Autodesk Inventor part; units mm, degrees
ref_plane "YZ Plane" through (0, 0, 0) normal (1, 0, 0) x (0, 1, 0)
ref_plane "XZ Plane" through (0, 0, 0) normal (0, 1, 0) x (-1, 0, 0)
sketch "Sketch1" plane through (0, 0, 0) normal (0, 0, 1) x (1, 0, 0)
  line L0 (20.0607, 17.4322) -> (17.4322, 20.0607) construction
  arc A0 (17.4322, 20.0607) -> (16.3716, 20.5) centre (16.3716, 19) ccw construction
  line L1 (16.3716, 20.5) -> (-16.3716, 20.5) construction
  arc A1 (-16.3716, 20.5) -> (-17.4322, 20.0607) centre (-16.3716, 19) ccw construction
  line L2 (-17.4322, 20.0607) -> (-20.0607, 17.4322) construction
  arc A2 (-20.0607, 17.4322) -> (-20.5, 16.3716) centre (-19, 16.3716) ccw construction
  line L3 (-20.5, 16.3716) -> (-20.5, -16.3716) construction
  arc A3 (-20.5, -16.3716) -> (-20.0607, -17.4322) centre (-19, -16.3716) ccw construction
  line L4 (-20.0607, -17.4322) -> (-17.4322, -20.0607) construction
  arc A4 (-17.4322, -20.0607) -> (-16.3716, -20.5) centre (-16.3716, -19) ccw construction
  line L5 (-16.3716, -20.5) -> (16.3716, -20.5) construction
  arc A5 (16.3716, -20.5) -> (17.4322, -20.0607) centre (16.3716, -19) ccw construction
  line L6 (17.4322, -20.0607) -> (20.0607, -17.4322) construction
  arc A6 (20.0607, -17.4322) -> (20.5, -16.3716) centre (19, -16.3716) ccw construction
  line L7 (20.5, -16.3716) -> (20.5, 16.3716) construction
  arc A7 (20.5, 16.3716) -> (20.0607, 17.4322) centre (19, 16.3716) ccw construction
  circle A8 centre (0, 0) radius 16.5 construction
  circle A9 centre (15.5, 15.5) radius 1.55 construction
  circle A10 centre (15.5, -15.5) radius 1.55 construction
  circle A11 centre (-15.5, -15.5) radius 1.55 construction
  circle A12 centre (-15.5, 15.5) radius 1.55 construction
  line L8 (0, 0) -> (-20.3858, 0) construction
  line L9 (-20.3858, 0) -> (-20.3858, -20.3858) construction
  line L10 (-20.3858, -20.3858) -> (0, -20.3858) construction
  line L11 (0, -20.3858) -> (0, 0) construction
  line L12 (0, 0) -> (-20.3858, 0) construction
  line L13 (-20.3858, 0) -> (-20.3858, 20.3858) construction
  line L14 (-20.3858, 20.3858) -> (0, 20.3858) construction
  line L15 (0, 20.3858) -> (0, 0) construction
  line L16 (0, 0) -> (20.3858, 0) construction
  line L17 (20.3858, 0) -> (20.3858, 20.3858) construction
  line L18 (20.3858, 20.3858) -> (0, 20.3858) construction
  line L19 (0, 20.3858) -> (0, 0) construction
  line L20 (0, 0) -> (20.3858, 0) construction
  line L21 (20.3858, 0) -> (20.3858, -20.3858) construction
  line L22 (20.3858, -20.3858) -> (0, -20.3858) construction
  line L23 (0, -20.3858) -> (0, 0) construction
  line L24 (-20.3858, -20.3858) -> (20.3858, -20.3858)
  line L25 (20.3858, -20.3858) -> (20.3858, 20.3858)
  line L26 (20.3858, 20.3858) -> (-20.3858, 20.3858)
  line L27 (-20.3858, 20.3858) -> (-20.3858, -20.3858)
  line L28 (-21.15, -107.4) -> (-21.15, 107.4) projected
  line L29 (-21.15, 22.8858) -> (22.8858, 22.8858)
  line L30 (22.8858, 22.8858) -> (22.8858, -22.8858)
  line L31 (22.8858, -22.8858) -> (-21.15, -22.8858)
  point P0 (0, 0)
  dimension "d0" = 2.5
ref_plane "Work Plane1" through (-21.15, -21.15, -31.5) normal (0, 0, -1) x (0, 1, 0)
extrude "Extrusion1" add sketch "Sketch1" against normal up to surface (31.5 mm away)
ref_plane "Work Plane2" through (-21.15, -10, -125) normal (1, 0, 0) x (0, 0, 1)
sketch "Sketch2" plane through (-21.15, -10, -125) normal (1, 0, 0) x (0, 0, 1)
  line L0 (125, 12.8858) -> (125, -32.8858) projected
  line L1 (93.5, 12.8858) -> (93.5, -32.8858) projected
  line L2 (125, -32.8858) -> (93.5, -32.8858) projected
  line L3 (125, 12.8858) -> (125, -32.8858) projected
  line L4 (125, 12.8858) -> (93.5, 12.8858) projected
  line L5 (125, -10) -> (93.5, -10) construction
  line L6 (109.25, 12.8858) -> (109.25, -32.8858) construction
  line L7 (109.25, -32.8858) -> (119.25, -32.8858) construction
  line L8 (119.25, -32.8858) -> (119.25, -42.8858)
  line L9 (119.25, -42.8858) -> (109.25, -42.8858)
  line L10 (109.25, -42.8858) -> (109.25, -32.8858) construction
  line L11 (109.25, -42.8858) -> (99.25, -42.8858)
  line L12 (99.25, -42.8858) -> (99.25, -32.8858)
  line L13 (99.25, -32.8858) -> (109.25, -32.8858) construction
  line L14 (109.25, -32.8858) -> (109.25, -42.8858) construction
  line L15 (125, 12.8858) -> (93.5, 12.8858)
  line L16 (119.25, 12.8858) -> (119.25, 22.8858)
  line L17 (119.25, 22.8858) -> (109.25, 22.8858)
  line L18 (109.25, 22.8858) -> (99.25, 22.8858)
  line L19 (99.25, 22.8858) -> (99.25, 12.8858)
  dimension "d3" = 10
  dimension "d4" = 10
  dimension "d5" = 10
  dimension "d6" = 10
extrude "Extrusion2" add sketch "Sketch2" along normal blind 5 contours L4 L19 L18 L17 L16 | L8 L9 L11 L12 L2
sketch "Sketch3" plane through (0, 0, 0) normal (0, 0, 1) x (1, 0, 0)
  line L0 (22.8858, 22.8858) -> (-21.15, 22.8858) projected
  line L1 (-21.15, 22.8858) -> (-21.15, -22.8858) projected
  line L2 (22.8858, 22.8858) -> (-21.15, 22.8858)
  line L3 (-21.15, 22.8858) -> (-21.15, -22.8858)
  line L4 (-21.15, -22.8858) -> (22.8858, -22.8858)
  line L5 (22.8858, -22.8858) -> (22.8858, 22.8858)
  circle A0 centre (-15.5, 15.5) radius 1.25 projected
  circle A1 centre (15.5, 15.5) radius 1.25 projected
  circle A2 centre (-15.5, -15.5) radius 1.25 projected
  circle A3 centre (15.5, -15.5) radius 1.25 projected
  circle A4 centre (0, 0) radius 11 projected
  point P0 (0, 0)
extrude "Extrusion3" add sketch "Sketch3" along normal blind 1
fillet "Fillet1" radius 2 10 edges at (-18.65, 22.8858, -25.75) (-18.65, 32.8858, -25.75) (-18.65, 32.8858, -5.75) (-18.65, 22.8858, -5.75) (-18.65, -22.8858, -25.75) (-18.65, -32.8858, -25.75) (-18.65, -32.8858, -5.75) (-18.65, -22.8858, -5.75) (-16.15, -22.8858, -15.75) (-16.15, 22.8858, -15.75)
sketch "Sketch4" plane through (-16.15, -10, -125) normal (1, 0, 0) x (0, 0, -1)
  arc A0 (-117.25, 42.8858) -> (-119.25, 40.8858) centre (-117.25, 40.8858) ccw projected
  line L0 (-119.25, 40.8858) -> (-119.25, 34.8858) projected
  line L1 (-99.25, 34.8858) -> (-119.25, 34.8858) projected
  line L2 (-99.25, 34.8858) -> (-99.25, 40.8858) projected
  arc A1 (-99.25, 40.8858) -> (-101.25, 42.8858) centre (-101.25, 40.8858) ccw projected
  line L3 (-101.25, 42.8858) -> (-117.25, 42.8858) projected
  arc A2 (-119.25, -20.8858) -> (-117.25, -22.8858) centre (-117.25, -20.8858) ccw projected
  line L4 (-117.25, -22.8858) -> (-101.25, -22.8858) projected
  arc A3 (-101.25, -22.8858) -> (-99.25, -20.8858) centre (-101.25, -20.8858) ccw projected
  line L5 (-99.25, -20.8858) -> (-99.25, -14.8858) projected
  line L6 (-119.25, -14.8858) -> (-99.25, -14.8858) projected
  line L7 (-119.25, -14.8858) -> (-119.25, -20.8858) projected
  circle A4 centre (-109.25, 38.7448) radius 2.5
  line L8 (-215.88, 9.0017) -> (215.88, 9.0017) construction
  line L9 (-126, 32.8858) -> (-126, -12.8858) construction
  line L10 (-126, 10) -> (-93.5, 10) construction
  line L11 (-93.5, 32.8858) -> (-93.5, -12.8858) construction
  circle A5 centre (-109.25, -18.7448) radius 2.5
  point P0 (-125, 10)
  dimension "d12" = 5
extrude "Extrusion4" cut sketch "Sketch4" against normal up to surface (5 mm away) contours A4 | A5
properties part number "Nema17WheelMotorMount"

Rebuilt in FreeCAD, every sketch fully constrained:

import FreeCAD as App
import Part
import Sketcher
Q = App.Units.Quantity


def edges_at(feature, points):
    """Names of the edges that pass closest to the given points."""
    edges = feature.Shape.Edges
    near = lambda p: min(range(len(edges)), key=lambda i: edges[i].distToShape(Part.Vertex(*p))[0])
    return sorted({f"Edge{near(p) + 1}" for p in points})

doc = App.newDocument("Part")
body = doc.addObject("PartDesign::Body", "Body")

sketch1 = body.newObject("Sketcher::SketchObject", "Sketch")
sketch1.AttachmentSupport = (doc.getObject("XY_Plane"), [""])
sketch1.MapMode = "FlatFace"
sketch1.addGeometry(Part.LineSegment(App.Vector(-21.15, 22.8858, 0), App.Vector(-21.15, -22.8858, 0)), False)
sketch1.addGeometry(Part.LineSegment(App.Vector(-21.15, -22.8858, 0), App.Vector(22.8858, -22.8858, 0)), False)
sketch1.addGeometry(Part.LineSegment(App.Vector(22.8858, -22.8858, 0), App.Vector(22.8858, 22.8858, 0)), False)
sketch1.addGeometry(Part.LineSegment(App.Vector(22.8858, 22.8858, 0), App.Vector(-21.15, 22.8858, 0)), False)
sketch1.addGeometry(Part.LineSegment(App.Vector(20.3858, -20.3858, 0), App.Vector(-20.3858, -20.3858, 0)), False)
sketch1.addGeometry(Part.LineSegment(App.Vector(-20.3858, -20.3858, 0), App.Vector(-20.3858, 20.3858, 0)), False)
sketch1.addGeometry(Part.LineSegment(App.Vector(-20.3858, 20.3858, 0), App.Vector(20.3858, 20.3858, 0)), False)
sketch1.addGeometry(Part.LineSegment(App.Vector(20.3858, 20.3858, 0), App.Vector(20.3858, -20.3858, 0)), False)
sketch1.addConstraint(Sketcher.Constraint("Coincident", 0, 2, 1, 1))
sketch1.addConstraint(Sketcher.Constraint("Coincident", 1, 2, 2, 1))
sketch1.addConstraint(Sketcher.Constraint("Coincident", 2, 2, 3, 1))
sketch1.addConstraint(Sketcher.Constraint("Coincident", 3, 2, 0, 1))
sketch1.addConstraint(Sketcher.Constraint("Coincident", 4, 2, 5, 1))
sketch1.addConstraint(Sketcher.Constraint("Coincident", 5, 2, 6, 1))
sketch1.addConstraint(Sketcher.Constraint("Coincident", 6, 2, 7, 1))
sketch1.addConstraint(Sketcher.Constraint("Coincident", 7, 2, 4, 1))
sketch1.addConstraint(Sketcher.Constraint("Vertical", 0))
sketch1.addConstraint(Sketcher.Constraint("Horizontal", 1))
sketch1.addConstraint(Sketcher.Constraint("Vertical", 2))
sketch1.addConstraint(Sketcher.Constraint("Horizontal", 3))
sketch1.addConstraint(Sketcher.Constraint("Horizontal", 4))
sketch1.addConstraint(Sketcher.Constraint("Vertical", 5))
sketch1.addConstraint(Sketcher.Constraint("Horizontal", 6))
sketch1.addConstraint(Sketcher.Constraint("Vertical", 7))
sketch1.addConstraint(Sketcher.Constraint("Symmetric", 4, 2, 6, 2, -1, 1))
sketch1.addConstraint(Sketcher.Constraint("Equal", 6, 5))
sketch1.addConstraint(Sketcher.Constraint("DistanceY", 0, 2, 4, 2, Q("2.5 mm")))
sketch1.addConstraint(Sketcher.Constraint("DistanceY", 5, 2, 3, 2, Q("2.5 mm")))
sketch1.addConstraint(Sketcher.Constraint("DistanceX", 6, 2, 2, 2, Q("2.5 mm")))
sketch1.addConstraint(Sketcher.Constraint("DistanceX", 0, 2, -1, 1, Q("21.15 mm")))
sketch1.addConstraint(Sketcher.Constraint("DistanceX", 1, 1, 1, 2, Q("44.0358 mm")))
pad1 = body.newObject("PartDesign::Pad", "Pad")
pad1.Profile = sketch1
pad1.Length = 31.5
pad1.Reversed = True

sketch2 = body.newObject("Sketcher::SketchObject", "Sketch001")
sketch2.AttachmentSupport = (doc.getObject("YZ_Plane"), [""])
sketch2.MapMode = "FlatFace"
sketch2.AttachmentOffset = App.Placement(App.Vector(0, 0, -21.15), App.Rotation())
sketch2.addGeometry(Part.LineSegment(App.Vector(-22.8858, -25.75, 0), App.Vector(-22.8858, -5.75, 0)), False)
sketch2.addGeometry(Part.LineSegment(App.Vector(-22.8858, -5.75, 0), App.Vector(-32.8858, -5.75, 0)), False)
sketch2.addGeometry(Part.LineSegment(App.Vector(-32.8858, -5.75, 0), App.Vector(-32.8858, -25.75, 0)), False)
sketch2.addGeometry(Part.LineSegment(App.Vector(-32.8858, -25.75, 0), App.Vector(-22.8858, -25.75, 0)), False)
sketch2.addGeometry(Part.LineSegment(App.Vector(32.8858, -5.75, 0), App.Vector(22.8858, -5.75, 0)), False)
sketch2.addGeometry(Part.LineSegment(App.Vector(22.8858, -5.75, 0), App.Vector(22.8858, -25.75, 0)), False)
sketch2.addGeometry(Part.LineSegment(App.Vector(22.8858, -25.75, 0), App.Vector(32.8858, -25.75, 0)), False)
sketch2.addGeometry(Part.LineSegment(App.Vector(32.8858, -25.75, 0), App.Vector(32.8858, -5.75, 0)), False)
sketch2.addConstraint(Sketcher.Constraint("Coincident", 0, 2, 1, 1))
sketch2.addConstraint(Sketcher.Constraint("Coincident", 1, 2, 2, 1))
sketch2.addConstraint(Sketcher.Constraint("Coincident", 2, 2, 3, 1))
sketch2.addConstraint(Sketcher.Constraint("Coincident", 3, 2, 0, 1))
sketch2.addConstraint(Sketcher.Constraint("Coincident", 4, 2, 5, 1))
sketch2.addConstraint(Sketcher.Constraint("Coincident", 5, 2, 6, 1))
sketch2.addConstraint(Sketcher.Constraint("Coincident", 6, 2, 7, 1))
sketch2.addConstraint(Sketcher.Constraint("Coincident", 7, 2, 4, 1))
sketch2.addConstraint(Sketcher.Constraint("Vertical", 0))
sketch2.addConstraint(Sketcher.Constraint("Horizontal", 1))
sketch2.addConstraint(Sketcher.Constraint("Vertical", 2))
sketch2.addConstraint(Sketcher.Constraint("Horizontal", 3))
sketch2.addConstraint(Sketcher.Constraint("Horizontal", 4))
sketch2.addConstraint(Sketcher.Constraint("Vertical", 5))
sketch2.addConstraint(Sketcher.Constraint("Horizontal", 6))
sketch2.addConstraint(Sketcher.Constraint("Vertical", 7))
sketch2.addConstraint(Sketcher.Constraint("Symmetric", 0, 2, 4, 2, -2))
sketch2.addConstraint(Sketcher.Constraint("Symmetric", 2, 2, 6, 2, -2))
sketch2.addConstraint(Sketcher.Constraint("DistanceX", 1, 2, 1, 1, Q("10 mm")))
sketch2.addConstraint(Sketcher.Constraint("DistanceY", 0, 1, 0, 2, Q("20 mm")))
sketch2.addConstraint(Sketcher.Constraint("DistanceY", 0, 2, -1, 1, Q("5.75 mm")))
sketch2.addConstraint(Sketcher.Constraint("DistanceX", 0, 2, -1, 1, Q("22.8858 mm")))
pad2 = body.newObject("PartDesign::Pad", "Pad001")
pad2.Profile = sketch2
pad2.Length = 5

sketch3 = body.newObject("Sketcher::SketchObject", "Sketch002")
sketch3.AttachmentSupport = (doc.getObject("XY_Plane"), [""])
sketch3.MapMode = "FlatFace"
sketch3.addGeometry(Part.LineSegment(App.Vector(22.8858, -22.8858, 0), App.Vector(22.8858, 22.8858, 0)), False)
sketch3.addGeometry(Part.LineSegment(App.Vector(22.8858, 22.8858, 0), App.Vector(-21.15, 22.8858, 0)), False)
sketch3.addGeometry(Part.LineSegment(App.Vector(-21.15, 22.8858, 0), App.Vector(-21.15, -22.8858, 0)), False)
sketch3.addGeometry(Part.LineSegment(App.Vector(-21.15, -22.8858, 0), App.Vector(22.8858, -22.8858, 0)), False)
sketch3.addGeometry(Part.Circle(App.Vector(-15.5, -15.5, 0), App.Vector(0, 0, 1), 1.25), False)
sketch3.addGeometry(Part.Circle(App.Vector(0, 0, 0), App.Vector(0, 0, 1), 11), False)
sketch3.addGeometry(Part.Circle(App.Vector(15.5, -15.5, 0), App.Vector(0, 0, 1), 1.25), False)
sketch3.addGeometry(Part.Circle(App.Vector(-15.5, 15.5, 0), App.Vector(0, 0, 1), 1.25), False)
sketch3.addGeometry(Part.Circle(App.Vector(15.5, 15.5, 0), App.Vector(0, 0, 1), 1.25), False)
sketch3.addConstraint(Sketcher.Constraint("Coincident", 0, 2, 1, 1))
sketch3.addConstraint(Sketcher.Constraint("Coincident", 1, 2, 2, 1))
sketch3.addConstraint(Sketcher.Constraint("Coincident", 2, 2, 3, 1))
sketch3.addConstraint(Sketcher.Constraint("Coincident", 3, 2, 0, 1))
sketch3.addConstraint(Sketcher.Constraint("Vertical", 0))
sketch3.addConstraint(Sketcher.Constraint("Horizontal", 1))
sketch3.addConstraint(Sketcher.Constraint("Vertical", 2))
sketch3.addConstraint(Sketcher.Constraint("Horizontal", 3))
sketch3.addConstraint(Sketcher.Constraint("Coincident", 5, 3, -1, 1))
sketch3.addConstraint(Sketcher.Constraint("Equal", 4, 6))
sketch3.addConstraint(Sketcher.Constraint("Equal", 6, 7))
sketch3.addConstraint(Sketcher.Constraint("Equal", 7, 8))
sketch3.addConstraint(Sketcher.Constraint("Symmetric", 6, 3, 7, 3, -1, 1))
sketch3.addConstraint(Sketcher.Constraint("Symmetric", 4, 3, 8, 3, -1, 1))
sketch3.addConstraint(Sketcher.Constraint("Symmetric", 4, 3, 6, 3, -2))
sketch3.addConstraint(Sketcher.Constraint("Diameter", 5, Q("22 mm")))
sketch3.addConstraint(Sketcher.Constraint("Diameter", 4, Q("2.5 mm")))
sketch3.addConstraint(Sketcher.Constraint("DistanceX", 4, 3, 6, 3, Q("31 mm")))
sketch3.addConstraint(Sketcher.Constraint("DistanceY", 4, 3, 7, 3, Q("31 mm")))
sketch3.addConstraint(Sketcher.Constraint("DistanceX", 1, 2, -1, 1, Q("21.15 mm")))
sketch3.addConstraint(Sketcher.Constraint("DistanceX", 1, 2, 1, 1, Q("44.0358 mm")))
sketch3.addConstraint(Sketcher.Constraint("DistanceY", 0, 1, 0, 2, Q("45.7716 mm")))
sketch3.addConstraint(Sketcher.Constraint("DistanceY", -1, 1, 0, 2, Q("22.8858 mm")))
pad3 = body.newObject("PartDesign::Pad", "Pad002")
pad3.Profile = sketch3
pad3.Length = 1
doc.recompute()

fillet = body.newObject("PartDesign::Fillet", "Fillet")
fillet.Base = (pad3, edges_at(pad3, [
    (-18.65, 22.886, -25.75),
    (-18.65, 32.886, -25.75),
    (-18.65, 32.886, -5.75),
    (-18.65, 22.886, -5.75),
    (-18.65, -22.886, -25.75),
    (-18.65, -32.886, -25.75),
    (-18.65, -32.886, -5.75),
    (-18.65, -22.886, -5.75),
    (-16.15, -22.886, -15.75),
    (-16.15, 22.886, -15.75),
]))
fillet.Radius = 2

sketch4 = body.newObject("Sketcher::SketchObject", "Sketch003")
sketch4.AttachmentSupport = (doc.getObject("YZ_Plane"), [""])
sketch4.MapMode = "FlatFace"
sketch4.AttachmentOffset = App.Placement(App.Vector(0, 0, -16.15), App.Rotation())
sketch4.addGeometry(Part.Circle(App.Vector(28.7448, -15.75, 0), App.Vector(0, 0, 1), 2.5), False)
sketch4.addGeometry(Part.Circle(App.Vector(-28.7448, -15.75, 0), App.Vector(0, 0, 1), 2.5), False)
sketch4.addConstraint(Sketcher.Constraint("Equal", 0, 1))
sketch4.addConstraint(Sketcher.Constraint("Symmetric", 0, 3, 1, 3, -2))
sketch4.addConstraint(Sketcher.Constraint("Diameter", 0, Q("5 mm")))
sketch4.addConstraint(Sketcher.Constraint("DistanceY", 0, 3, -1, 1, Q("15.75 mm")))
sketch4.addConstraint(Sketcher.Constraint("DistanceX", -1, 1, 0, 3, Q("28.7448 mm")))
pocket1 = body.newObject("PartDesign::Pocket", "Pocket")
pocket1.Profile = sketch4
pocket1.Length = 5

doc.recompute()
